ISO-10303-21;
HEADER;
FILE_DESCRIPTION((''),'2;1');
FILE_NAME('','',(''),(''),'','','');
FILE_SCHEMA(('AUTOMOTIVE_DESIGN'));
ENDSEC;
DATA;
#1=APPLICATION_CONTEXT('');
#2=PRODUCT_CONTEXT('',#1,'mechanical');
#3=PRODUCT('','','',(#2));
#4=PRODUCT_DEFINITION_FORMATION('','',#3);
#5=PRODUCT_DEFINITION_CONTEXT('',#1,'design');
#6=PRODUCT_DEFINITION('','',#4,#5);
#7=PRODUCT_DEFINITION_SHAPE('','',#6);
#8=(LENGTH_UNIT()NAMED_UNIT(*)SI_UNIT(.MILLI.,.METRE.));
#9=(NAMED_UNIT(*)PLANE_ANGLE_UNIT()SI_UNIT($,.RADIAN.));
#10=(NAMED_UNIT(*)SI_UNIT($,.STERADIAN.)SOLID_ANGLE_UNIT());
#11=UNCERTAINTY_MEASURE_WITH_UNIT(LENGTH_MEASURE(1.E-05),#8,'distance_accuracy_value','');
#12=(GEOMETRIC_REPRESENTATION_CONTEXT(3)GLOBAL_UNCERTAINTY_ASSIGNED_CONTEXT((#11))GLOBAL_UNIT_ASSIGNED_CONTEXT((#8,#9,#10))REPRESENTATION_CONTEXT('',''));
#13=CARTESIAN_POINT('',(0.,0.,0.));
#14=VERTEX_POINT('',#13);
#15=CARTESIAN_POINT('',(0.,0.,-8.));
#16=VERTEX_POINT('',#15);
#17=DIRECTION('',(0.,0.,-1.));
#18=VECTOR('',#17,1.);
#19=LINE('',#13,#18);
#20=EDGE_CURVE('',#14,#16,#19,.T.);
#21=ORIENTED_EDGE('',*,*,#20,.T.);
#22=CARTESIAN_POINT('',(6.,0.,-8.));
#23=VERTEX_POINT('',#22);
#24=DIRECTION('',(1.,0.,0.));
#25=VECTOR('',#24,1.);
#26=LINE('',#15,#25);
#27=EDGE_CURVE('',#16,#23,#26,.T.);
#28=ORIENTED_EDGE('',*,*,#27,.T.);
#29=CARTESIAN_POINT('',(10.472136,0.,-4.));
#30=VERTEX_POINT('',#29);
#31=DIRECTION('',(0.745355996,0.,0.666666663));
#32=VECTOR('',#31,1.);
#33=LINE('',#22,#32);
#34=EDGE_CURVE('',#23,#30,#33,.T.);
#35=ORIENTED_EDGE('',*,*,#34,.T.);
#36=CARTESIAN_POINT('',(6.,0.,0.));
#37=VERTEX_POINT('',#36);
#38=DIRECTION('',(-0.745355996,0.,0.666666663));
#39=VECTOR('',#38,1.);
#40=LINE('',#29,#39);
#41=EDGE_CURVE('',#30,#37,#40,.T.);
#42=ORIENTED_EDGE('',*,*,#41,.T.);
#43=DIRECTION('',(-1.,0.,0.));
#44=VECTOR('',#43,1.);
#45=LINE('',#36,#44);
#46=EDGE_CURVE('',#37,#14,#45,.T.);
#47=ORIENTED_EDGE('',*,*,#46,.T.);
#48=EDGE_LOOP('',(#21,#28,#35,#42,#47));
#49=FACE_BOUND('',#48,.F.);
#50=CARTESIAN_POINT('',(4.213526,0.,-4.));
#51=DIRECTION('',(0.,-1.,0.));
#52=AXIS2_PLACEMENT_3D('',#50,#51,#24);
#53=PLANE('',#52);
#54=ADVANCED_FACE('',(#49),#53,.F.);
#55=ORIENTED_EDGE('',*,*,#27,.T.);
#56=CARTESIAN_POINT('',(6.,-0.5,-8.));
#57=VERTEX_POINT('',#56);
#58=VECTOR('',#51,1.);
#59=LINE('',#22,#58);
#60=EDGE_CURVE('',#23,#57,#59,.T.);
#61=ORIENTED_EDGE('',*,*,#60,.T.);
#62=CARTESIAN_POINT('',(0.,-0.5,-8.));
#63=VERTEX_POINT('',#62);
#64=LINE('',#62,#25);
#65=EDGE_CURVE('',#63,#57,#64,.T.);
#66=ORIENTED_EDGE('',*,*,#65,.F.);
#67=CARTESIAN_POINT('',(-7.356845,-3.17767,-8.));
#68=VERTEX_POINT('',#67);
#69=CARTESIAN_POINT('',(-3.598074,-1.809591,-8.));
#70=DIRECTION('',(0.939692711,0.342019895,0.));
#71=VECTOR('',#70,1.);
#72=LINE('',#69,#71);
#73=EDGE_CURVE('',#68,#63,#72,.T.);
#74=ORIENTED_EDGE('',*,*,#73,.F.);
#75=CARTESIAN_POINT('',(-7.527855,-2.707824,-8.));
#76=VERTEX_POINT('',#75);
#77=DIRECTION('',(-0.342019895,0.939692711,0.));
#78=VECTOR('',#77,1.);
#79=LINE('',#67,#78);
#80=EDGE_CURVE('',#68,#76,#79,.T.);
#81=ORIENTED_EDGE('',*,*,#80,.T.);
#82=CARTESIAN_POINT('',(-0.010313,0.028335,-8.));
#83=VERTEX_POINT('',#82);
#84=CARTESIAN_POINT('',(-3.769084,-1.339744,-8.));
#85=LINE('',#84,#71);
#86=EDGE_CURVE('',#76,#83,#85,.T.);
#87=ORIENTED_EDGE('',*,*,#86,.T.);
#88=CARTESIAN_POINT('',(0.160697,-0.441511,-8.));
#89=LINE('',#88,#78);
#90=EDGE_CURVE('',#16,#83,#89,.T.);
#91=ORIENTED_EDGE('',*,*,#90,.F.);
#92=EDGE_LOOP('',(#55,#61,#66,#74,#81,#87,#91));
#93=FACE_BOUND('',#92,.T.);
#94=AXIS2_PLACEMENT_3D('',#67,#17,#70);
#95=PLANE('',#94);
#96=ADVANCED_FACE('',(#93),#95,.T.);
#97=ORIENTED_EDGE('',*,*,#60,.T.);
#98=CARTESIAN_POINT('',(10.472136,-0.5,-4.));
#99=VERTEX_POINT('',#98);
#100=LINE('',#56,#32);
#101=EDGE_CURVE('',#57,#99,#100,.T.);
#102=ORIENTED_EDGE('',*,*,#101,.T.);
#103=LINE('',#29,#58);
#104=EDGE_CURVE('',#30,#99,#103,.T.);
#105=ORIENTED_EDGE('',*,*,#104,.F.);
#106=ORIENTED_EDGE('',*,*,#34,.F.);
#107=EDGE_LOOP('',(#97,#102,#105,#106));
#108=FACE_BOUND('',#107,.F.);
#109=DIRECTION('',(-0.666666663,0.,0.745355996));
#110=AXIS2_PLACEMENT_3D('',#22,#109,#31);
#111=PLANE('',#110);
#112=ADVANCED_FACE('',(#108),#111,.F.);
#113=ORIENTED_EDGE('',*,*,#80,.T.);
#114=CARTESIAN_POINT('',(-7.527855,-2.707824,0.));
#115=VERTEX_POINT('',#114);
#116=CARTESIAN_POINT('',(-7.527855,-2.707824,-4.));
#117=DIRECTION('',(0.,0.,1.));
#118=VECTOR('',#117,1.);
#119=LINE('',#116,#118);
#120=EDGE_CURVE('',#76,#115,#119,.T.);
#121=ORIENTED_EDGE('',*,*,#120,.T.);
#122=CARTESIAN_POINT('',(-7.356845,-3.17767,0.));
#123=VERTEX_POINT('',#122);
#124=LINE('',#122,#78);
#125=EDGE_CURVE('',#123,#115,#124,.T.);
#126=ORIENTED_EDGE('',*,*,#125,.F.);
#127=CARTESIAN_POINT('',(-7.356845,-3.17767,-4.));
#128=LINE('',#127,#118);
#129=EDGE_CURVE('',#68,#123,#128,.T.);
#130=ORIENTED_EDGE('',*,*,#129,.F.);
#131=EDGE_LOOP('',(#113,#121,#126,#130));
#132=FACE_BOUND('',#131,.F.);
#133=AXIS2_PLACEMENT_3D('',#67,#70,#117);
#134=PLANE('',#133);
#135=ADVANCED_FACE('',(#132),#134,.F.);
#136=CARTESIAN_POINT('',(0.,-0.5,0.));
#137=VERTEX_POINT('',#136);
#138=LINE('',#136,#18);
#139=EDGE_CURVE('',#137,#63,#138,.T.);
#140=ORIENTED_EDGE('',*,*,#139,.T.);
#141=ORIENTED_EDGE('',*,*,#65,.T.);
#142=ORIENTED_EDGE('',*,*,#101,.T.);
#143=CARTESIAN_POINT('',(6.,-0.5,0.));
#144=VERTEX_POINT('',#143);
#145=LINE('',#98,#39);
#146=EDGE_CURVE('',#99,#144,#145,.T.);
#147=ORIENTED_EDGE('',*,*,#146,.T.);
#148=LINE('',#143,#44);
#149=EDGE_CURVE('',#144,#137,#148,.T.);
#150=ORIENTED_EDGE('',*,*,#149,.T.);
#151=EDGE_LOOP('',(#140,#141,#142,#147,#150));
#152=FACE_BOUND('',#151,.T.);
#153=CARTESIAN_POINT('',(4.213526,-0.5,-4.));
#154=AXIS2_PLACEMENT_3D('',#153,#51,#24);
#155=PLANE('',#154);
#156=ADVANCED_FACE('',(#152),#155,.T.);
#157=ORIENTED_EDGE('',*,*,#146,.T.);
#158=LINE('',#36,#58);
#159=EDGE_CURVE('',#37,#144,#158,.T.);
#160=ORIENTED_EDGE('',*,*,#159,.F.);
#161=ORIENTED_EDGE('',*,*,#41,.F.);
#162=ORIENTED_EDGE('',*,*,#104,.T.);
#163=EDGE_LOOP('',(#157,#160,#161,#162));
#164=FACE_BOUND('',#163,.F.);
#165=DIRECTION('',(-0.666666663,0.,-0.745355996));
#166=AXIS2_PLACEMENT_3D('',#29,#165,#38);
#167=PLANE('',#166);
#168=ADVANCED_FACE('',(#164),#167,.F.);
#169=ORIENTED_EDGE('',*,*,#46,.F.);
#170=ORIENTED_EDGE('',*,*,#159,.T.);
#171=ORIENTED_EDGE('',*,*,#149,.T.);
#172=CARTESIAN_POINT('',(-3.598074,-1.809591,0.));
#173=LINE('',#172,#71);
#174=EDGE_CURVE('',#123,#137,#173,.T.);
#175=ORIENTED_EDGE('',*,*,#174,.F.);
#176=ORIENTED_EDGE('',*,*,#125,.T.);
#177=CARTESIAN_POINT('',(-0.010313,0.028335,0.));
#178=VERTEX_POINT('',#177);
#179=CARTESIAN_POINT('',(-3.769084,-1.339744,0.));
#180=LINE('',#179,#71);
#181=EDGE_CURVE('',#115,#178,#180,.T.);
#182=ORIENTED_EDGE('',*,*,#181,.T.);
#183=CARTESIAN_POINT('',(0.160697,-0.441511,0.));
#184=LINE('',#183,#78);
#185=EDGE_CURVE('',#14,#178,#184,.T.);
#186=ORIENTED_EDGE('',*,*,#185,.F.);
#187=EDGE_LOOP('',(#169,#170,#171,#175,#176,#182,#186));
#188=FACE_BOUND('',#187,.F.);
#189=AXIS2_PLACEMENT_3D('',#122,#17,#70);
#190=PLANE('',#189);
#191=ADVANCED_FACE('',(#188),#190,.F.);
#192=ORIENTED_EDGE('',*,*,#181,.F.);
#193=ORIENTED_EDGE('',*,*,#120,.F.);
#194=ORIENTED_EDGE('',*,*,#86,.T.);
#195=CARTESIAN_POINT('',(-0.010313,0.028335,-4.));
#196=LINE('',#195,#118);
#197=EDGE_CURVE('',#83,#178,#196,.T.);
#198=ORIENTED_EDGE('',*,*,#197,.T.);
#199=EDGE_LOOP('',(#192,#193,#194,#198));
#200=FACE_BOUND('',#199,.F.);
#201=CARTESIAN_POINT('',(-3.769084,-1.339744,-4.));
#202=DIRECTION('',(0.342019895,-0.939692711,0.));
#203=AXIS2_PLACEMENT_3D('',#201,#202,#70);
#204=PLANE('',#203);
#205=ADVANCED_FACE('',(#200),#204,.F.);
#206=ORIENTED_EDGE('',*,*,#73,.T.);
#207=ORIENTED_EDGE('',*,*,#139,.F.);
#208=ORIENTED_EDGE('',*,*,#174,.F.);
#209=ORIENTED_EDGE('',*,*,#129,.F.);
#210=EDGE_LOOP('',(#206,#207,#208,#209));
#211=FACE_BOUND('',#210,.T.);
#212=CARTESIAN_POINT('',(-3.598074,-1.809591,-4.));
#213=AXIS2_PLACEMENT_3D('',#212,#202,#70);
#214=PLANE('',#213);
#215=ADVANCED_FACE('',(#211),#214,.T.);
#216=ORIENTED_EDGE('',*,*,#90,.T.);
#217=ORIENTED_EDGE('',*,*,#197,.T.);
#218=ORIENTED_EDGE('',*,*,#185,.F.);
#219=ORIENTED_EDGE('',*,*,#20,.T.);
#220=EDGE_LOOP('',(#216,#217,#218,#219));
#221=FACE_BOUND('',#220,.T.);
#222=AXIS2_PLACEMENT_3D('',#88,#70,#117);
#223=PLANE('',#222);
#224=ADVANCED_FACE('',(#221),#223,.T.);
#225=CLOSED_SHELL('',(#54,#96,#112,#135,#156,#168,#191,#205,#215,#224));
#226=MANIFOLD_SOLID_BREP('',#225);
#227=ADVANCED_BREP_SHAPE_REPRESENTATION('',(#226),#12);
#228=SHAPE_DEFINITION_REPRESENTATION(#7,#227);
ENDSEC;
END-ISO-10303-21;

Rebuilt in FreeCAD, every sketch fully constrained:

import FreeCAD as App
import Part
import Sketcher
from FreeCAD import Vector
Q = App.Units.Quantity


def add_polygon(sketch, points):
    """Adds a closed chain of lines whose ends are joined by coincident constraints."""
    first, n = sketch.GeometryCount, len(points)
    for a, b in zip(points, points[1:] + points[:1]):
        sketch.addGeometry(Part.LineSegment(App.Vector(*a, 0), App.Vector(*b, 0)), False)
    for i in range(n):
        sketch.addConstraint(Sketcher.Constraint("Coincident", first + i, 2, first + (i + 1) % n, 1))

doc = App.newDocument("Part")
body = doc.addObject("PartDesign::Body", "Body")

# Sketch on XZ plane
sketch1 = doc.addObject("Sketcher::SketchObject", "Sketch")
body.addObject(sketch1)
sketch1.AttachmentSupport = (doc.XZ_Plane, [""])
sketch1.MapMode = "FlatFace"
add_polygon(sketch1, [(6, 0), (0, 0), (0, -8), (6, -8), (10, -4)])  # lines 0-4
sketch1.addConstraint([
    Sketcher.Constraint("Horizontal", 0),
    Sketcher.Constraint("Vertical", 1),
    Sketcher.Constraint("Horizontal", 2),
    Sketcher.Constraint("Coincident", 0, 2, -1, 1),
    Sketcher.Constraint("Vertical", 2, 2, 4, 2),
    Sketcher.Constraint("Equal", 3, 4),
    Sketcher.Constraint("DistanceX", 0, 2, 0, 1, Q("6 mm")),
    Sketcher.Constraint("DistanceY", 1, 2, 1, 1, Q("8 mm")),
    Sketcher.Constraint("Distance", 3, Q("6 mm")),
])
pad1 = doc.addObject("PartDesign::Pad", "Pad")
body.addObject(pad1)
pad1.Profile = sketch1
pad1.Length = 0.5

# Sketch on an angled plane
sketch2 = doc.addObject("Sketcher::SketchObject", "Sketch001")
body.addObject(sketch2)
sketch2.Placement = App.Placement(Vector(0.160697, -0.441511, 0), App.Rotation(Vector(0.939692711, 0.342019895, 0), Vector(0, 0, 1), Vector(0.342019895, -0.939692711, 0), "ZXY"))
add_polygon(sketch2, [(-8, 0), (-8, -8), (0, -8), (0, 0)])  # lines 0-3
sketch2.addConstraint([
    Sketcher.Constraint("Vertical", 0),
    Sketcher.Constraint("Horizontal", 1),
    Sketcher.Constraint("Vertical", 2),
    Sketcher.Constraint("Horizontal", 3),
    Sketcher.Constraint("Coincident", 2, 2, -1, 1),
    Sketcher.Constraint("Equal", 3, 0),
    Sketcher.Constraint("DistanceX", 1, 1, 1, 2, Q("8 mm")),
])
pad2 = doc.addObject("PartDesign::Pad", "Pad001")
body.addObject(pad2)
pad2.Profile = sketch2
pad2.Length = 0.5
pad2.Reversed = True

doc.recompute()
